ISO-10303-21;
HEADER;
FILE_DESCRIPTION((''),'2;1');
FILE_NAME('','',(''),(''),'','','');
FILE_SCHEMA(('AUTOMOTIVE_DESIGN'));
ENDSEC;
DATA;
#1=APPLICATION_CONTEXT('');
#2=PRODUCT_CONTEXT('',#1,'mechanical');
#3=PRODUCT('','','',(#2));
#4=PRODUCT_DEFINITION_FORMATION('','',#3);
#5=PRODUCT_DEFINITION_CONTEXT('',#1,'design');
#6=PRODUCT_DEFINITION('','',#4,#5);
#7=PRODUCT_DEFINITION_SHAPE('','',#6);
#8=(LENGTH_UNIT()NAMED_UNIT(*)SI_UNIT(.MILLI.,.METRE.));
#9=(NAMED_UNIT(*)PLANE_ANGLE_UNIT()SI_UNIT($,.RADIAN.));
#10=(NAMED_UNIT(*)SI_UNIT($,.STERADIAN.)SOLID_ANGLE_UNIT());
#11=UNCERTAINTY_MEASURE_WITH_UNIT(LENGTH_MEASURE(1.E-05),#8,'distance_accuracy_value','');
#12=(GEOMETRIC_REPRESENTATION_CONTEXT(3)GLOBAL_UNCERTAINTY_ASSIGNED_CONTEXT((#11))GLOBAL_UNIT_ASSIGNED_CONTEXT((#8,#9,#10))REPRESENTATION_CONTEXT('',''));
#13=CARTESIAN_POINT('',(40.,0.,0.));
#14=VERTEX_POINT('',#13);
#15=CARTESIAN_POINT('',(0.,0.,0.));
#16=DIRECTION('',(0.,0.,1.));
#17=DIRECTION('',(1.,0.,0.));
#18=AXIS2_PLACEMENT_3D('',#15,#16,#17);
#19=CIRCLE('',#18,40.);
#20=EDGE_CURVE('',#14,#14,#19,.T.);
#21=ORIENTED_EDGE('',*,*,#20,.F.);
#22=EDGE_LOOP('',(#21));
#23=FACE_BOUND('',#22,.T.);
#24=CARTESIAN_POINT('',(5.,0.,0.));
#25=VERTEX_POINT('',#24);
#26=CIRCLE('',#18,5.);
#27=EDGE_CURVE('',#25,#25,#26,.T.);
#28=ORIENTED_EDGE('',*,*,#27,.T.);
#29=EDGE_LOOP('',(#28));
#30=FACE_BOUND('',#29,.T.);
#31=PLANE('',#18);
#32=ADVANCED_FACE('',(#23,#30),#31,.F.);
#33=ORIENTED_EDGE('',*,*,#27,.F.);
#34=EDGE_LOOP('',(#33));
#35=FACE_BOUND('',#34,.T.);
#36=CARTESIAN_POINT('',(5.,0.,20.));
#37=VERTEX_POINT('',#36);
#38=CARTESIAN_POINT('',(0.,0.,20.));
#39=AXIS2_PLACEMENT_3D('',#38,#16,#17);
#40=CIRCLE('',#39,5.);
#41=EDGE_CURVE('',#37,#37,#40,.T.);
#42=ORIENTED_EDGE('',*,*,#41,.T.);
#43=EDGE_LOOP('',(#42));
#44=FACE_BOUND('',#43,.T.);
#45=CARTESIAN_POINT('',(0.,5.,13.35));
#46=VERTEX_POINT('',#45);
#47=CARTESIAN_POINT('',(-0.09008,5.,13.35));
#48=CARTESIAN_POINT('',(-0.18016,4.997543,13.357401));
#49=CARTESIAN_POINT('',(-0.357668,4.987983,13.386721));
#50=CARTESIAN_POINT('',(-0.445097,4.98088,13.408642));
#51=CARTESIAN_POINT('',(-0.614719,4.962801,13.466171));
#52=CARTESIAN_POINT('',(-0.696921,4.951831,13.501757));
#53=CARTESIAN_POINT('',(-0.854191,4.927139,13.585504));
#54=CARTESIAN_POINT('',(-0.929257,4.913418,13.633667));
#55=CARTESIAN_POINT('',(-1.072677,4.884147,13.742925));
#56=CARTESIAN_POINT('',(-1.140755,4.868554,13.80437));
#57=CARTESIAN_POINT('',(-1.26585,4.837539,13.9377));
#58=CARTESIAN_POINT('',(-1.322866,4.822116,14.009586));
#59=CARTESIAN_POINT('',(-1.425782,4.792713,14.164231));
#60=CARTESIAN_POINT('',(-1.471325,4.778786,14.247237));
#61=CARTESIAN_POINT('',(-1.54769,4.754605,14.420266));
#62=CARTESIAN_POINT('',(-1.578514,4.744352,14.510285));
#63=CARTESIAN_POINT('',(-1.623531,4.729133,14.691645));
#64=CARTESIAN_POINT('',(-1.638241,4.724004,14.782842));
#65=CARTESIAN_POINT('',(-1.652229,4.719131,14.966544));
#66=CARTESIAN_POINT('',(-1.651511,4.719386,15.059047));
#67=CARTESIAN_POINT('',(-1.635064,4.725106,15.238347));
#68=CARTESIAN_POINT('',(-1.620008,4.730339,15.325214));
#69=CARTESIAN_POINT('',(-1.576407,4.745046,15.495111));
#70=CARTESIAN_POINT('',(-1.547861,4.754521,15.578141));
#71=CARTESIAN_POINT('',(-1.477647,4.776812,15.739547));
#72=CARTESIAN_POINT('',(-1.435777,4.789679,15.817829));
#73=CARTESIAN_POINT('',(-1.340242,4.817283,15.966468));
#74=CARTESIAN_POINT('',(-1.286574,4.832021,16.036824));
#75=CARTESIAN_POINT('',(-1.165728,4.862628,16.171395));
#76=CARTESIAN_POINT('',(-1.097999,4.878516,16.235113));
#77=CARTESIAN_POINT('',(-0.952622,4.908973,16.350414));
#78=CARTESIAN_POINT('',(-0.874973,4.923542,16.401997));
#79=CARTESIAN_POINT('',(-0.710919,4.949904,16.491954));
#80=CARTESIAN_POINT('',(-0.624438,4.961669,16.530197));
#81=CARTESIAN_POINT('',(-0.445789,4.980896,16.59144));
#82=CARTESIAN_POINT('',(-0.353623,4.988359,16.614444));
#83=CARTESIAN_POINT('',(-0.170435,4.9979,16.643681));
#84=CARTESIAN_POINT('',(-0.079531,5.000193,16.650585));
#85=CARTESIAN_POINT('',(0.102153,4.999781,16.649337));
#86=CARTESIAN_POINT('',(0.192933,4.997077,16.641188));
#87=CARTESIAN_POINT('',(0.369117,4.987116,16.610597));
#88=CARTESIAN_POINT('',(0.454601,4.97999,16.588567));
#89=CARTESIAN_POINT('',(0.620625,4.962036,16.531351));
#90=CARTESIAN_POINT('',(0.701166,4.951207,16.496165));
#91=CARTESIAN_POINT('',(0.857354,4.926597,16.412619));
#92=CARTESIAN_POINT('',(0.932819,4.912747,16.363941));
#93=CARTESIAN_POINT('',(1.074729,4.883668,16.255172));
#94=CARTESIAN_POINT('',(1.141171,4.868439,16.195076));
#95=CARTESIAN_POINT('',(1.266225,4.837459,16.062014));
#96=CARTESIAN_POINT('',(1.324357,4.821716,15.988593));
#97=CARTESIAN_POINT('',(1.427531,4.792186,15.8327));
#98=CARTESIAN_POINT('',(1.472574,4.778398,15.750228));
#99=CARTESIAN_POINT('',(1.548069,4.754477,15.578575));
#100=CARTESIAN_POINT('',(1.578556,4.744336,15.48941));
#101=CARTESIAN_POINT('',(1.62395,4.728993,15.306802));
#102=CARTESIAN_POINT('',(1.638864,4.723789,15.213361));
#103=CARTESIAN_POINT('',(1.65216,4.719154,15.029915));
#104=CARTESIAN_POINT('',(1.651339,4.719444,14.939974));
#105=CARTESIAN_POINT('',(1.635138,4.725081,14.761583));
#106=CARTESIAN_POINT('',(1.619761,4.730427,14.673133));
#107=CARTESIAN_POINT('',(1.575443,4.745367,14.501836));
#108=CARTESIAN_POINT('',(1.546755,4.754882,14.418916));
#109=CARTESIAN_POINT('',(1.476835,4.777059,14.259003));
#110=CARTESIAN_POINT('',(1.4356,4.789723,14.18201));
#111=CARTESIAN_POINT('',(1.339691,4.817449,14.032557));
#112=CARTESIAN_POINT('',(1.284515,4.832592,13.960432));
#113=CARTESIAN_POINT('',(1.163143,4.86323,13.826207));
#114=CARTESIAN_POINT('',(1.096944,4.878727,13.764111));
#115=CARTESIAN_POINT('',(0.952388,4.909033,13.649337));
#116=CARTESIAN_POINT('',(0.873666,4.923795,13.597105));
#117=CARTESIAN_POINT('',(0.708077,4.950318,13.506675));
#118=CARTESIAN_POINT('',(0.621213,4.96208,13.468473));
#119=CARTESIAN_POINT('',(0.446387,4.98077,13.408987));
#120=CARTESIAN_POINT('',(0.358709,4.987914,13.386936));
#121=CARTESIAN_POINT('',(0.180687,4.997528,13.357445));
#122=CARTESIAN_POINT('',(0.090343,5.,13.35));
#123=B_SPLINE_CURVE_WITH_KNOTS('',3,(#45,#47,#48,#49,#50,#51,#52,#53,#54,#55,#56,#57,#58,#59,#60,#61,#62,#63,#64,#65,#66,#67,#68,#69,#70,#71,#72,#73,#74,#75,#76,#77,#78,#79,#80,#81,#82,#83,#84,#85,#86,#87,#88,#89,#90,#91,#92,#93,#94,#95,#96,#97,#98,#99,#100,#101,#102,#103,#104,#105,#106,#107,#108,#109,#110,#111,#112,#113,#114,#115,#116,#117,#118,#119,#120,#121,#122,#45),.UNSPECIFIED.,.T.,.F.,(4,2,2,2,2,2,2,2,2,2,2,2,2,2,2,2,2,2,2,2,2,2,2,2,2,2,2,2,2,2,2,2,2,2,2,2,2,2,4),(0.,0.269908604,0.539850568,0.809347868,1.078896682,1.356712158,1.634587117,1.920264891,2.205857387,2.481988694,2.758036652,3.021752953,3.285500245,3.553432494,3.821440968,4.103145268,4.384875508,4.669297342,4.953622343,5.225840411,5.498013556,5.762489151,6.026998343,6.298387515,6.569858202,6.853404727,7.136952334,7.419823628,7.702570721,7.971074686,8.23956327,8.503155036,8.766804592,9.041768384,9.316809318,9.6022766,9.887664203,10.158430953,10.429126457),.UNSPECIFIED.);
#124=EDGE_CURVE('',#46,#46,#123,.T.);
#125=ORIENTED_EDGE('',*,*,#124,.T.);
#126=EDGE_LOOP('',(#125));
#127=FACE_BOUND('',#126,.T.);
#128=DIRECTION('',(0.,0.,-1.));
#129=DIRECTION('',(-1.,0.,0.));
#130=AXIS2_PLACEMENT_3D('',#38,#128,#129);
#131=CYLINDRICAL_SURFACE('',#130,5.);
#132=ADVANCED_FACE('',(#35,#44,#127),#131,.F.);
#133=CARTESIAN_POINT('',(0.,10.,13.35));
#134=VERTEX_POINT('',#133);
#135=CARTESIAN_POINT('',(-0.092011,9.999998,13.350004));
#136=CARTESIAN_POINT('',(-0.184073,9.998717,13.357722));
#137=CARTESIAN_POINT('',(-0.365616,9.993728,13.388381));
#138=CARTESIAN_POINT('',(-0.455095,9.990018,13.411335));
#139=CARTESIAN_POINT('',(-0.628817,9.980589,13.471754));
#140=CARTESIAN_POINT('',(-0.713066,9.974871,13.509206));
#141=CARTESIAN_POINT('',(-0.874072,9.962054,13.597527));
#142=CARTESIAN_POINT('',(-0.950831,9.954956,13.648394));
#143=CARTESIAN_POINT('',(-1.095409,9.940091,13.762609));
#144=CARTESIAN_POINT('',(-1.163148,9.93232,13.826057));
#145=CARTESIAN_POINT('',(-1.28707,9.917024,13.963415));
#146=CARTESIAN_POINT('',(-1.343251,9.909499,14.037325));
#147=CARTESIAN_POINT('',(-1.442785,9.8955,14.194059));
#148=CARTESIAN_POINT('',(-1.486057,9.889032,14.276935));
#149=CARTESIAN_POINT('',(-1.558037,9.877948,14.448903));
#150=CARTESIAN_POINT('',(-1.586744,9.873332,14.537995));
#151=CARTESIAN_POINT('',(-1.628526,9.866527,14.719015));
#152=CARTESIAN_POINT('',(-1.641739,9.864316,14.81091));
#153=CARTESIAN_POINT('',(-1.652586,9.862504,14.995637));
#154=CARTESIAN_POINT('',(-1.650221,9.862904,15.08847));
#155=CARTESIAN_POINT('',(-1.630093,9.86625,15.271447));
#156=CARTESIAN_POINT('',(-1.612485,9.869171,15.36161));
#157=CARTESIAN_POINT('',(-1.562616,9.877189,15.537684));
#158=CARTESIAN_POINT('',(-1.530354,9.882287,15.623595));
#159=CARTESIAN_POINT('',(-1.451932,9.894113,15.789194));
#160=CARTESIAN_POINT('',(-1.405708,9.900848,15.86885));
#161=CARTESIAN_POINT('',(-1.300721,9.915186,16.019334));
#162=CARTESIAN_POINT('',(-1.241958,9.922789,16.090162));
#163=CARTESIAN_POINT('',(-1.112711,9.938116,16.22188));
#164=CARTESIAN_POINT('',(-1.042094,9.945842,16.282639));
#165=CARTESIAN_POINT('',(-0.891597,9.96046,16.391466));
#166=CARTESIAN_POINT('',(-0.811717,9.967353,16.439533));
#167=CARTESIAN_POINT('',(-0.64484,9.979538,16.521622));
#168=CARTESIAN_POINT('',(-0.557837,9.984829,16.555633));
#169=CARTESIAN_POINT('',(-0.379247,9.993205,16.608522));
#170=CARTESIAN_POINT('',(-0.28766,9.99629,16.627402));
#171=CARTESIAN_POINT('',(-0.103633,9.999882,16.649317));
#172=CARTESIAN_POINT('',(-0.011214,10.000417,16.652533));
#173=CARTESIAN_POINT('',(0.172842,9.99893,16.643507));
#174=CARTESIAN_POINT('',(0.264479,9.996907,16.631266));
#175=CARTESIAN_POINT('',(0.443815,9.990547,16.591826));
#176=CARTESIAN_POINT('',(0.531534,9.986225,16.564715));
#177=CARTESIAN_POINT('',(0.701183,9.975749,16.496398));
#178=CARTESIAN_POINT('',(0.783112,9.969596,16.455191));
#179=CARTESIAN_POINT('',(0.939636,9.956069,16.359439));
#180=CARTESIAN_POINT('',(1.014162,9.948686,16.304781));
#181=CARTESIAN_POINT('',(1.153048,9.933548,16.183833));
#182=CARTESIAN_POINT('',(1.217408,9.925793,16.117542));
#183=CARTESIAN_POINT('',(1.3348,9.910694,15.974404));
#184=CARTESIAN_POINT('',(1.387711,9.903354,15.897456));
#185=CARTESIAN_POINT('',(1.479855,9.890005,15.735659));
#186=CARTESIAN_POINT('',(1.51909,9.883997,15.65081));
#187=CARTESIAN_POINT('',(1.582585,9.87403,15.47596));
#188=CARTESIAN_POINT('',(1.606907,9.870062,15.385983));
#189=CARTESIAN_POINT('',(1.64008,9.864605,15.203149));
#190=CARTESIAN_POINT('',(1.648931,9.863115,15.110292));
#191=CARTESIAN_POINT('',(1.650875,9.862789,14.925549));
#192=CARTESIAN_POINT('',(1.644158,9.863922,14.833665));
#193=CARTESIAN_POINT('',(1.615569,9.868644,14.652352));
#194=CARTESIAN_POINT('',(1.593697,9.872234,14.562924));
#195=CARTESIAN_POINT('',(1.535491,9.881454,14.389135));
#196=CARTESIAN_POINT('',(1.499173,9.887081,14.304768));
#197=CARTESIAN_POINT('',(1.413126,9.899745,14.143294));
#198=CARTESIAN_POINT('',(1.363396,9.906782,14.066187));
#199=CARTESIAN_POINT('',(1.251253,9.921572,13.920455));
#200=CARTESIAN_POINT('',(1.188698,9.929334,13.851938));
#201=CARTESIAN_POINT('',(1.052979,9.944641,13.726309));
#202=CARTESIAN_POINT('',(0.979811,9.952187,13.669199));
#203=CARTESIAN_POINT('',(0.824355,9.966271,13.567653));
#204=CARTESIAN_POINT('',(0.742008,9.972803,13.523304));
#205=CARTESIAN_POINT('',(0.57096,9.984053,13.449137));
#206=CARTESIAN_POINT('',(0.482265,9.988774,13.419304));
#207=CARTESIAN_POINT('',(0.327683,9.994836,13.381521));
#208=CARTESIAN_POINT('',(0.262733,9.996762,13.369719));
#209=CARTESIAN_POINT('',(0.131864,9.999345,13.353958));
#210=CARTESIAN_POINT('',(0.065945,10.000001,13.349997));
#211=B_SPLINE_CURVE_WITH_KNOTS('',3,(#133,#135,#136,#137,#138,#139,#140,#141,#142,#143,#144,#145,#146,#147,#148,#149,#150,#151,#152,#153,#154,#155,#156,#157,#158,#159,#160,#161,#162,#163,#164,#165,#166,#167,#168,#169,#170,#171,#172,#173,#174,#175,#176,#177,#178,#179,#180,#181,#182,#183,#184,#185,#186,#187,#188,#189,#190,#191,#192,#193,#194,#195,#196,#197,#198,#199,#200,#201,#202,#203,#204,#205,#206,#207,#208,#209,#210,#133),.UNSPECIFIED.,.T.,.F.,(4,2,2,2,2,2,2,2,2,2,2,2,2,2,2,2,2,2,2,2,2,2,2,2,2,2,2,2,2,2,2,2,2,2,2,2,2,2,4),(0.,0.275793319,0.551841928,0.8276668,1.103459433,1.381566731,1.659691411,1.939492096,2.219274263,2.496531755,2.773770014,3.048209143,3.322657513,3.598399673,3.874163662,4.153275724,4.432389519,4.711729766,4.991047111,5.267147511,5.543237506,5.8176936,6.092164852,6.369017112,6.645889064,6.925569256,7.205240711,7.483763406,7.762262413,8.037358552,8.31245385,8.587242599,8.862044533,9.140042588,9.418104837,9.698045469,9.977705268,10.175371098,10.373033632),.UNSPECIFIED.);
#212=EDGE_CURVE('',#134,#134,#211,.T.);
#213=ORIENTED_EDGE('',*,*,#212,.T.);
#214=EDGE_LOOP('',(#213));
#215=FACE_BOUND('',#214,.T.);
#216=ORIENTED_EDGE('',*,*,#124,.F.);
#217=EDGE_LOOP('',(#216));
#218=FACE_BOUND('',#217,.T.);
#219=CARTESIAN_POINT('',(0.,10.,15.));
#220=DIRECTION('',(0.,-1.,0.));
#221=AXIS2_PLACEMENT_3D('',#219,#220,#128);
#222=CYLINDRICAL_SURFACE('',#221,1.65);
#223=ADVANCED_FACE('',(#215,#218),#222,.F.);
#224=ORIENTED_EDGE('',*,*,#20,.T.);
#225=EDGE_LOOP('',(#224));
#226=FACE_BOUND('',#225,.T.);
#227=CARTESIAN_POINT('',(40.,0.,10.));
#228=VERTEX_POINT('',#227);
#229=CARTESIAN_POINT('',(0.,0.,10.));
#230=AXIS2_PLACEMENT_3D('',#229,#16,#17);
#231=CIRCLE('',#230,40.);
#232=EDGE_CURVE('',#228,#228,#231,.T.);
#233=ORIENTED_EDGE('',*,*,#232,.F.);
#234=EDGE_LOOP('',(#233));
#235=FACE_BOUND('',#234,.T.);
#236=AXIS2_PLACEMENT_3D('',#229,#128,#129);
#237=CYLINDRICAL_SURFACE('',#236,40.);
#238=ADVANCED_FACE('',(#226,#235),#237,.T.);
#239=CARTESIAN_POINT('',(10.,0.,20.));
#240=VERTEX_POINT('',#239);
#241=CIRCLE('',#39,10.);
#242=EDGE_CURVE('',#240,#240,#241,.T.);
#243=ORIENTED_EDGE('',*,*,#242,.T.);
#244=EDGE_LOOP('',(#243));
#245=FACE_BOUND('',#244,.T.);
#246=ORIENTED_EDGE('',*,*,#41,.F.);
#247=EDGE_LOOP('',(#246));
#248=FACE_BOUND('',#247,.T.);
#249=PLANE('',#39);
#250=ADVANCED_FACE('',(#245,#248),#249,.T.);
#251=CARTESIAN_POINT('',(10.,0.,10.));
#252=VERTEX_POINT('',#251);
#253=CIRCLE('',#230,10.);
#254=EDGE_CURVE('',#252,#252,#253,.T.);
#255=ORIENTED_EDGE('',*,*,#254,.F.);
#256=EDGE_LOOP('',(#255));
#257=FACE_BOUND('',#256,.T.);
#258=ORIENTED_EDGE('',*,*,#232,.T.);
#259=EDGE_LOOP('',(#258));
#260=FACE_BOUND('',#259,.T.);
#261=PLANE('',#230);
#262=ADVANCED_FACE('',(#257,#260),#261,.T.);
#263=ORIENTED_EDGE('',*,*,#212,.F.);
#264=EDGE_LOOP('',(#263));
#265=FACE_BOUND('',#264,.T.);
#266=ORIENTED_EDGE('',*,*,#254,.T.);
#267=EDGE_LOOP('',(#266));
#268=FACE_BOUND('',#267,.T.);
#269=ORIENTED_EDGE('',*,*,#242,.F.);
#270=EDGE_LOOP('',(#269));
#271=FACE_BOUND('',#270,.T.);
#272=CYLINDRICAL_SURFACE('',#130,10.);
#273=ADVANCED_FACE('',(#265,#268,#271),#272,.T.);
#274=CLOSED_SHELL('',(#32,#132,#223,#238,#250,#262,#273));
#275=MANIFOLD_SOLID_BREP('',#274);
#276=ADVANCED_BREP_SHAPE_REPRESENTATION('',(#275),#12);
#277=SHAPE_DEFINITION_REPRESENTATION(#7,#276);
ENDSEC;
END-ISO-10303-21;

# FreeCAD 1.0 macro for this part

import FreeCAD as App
import Part
import Sketcher
Q = App.Units.Quantity

doc = App.newDocument("Part")
params = doc.addObject("Spreadsheet::Sheet", "Params")
for row, (alias, value) in enumerate([
    ("sketch1_diameter", "80 mm"),
    ("pad1_length", "10 mm"),
    ("sketch2_diameter", "20 mm"),
    ("pad2_length", "10 mm"),
    ("sketch3_diameter", "10 mm"),
    ("pocket1_length", "20 mm"),
    ("sketch4_diameter", "3.3 mm"),
    ("pocket2_length", "10 mm"),
], start=1):
    params.set(f"A{row}", alias)
    params.set(f"B{row}", "=" + value)
    params.setAlias(f"B{row}", alias)

body = doc.addObject("PartDesign::Body", "Body")

sketch1 = body.newObject("Sketcher::SketchObject", "Sketch")
sketch1.AttachmentSupport = (doc.getObject("XY_Plane"), [""])
sketch1.MapMode = "FlatFace"
sketch1.addGeometry(Part.Circle(App.Vector(0, 0, 0), App.Vector(0, 0, 1), 40), False)
sketch1.addConstraint(Sketcher.Constraint("Coincident", 0, 3, -1, 1))
sketch1.addConstraint(Sketcher.Constraint("Diameter", 0, Q("80 mm")))
sketch1.setExpression("Constraints[1]", "Params.sketch1_diameter")
pad1 = body.newObject("PartDesign::Pad", "Pad")
pad1.Profile = sketch1
pad1.setExpression("Length", "Params.pad1_length")

sketch2 = body.newObject("Sketcher::SketchObject", "Sketch001")
sketch2.AttachmentSupport = (doc.getObject("XY_Plane"), [""])
sketch2.MapMode = "FlatFace"
sketch2.AttachmentOffset = App.Placement(App.Vector(0, 0, 10), App.Rotation())
sketch2.addGeometry(Part.Circle(App.Vector(0, 0, 0), App.Vector(0, 0, 1), 10), False)
sketch2.addConstraint(Sketcher.Constraint("Coincident", 0, 3, -1, 1))
sketch2.addConstraint(Sketcher.Constraint("Diameter", 0, Q("20 mm")))
sketch2.setExpression("Constraints[1]", "Params.sketch2_diameter")
pad2 = body.newObject("PartDesign::Pad", "Pad001")
pad2.Profile = sketch2
pad2.setExpression("Length", "Params.pad2_length")

sketch3 = body.newObject("Sketcher::SketchObject", "Sketch002")
sketch3.AttachmentSupport = (doc.getObject("XY_Plane"), [""])
sketch3.MapMode = "FlatFace"
sketch3.addGeometry(Part.Circle(App.Vector(0, 0, 0), App.Vector(0, 0, 1), 5), False)
sketch3.addConstraint(Sketcher.Constraint("Coincident", 0, 3, -1, 1))
sketch3.addConstraint(Sketcher.Constraint("Diameter", 0, Q("10 mm")))
sketch3.setExpression("Constraints[1]", "Params.sketch3_diameter")
pocket1 = body.newObject("PartDesign::Pocket", "Pocket")
pocket1.Profile = sketch3
pocket1.setExpression("Length", "Params.pocket1_length")
pocket1.Reversed = True

sketch4 = body.newObject("Sketcher::SketchObject", "Sketch003")
sketch4.AttachmentSupport = (doc.getObject("XZ_Plane"), [""])
sketch4.MapMode = "FlatFace"
sketch4.addGeometry(Part.Circle(App.Vector(0, 15, 0), App.Vector(0, 0, 1), 1.6), False)
sketch4.addConstraint(Sketcher.Constraint("PointOnObject", 0, 3, -2))
sketch4.addConstraint(Sketcher.Constraint("Diameter", 0, Q("3.3 mm")))
sketch4.addConstraint(Sketcher.Constraint("DistanceY", -1, 1, 0, 3, Q("15 mm")))
sketch4.setExpression("Constraints[1]", "Params.sketch4_diameter")
pocket2 = body.newObject("PartDesign::Pocket", "Pocket001")
pocket2.Profile = sketch4
pocket2.setExpression("Length", "Params.pocket2_length")

doc.recompute()
